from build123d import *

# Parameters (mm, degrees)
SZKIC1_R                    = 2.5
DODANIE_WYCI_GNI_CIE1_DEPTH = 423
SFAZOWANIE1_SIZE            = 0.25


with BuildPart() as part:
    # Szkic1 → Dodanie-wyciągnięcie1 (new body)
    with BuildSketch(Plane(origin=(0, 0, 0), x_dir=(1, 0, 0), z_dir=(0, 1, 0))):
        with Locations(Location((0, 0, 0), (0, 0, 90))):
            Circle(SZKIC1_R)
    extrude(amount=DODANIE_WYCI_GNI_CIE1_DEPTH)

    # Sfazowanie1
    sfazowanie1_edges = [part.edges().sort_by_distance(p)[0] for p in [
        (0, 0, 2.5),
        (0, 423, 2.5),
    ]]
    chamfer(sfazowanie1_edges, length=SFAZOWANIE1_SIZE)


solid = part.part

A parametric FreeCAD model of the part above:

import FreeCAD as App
import Part
import Sketcher

V = App.Vector


def edges_at(feature, points):
    """Names of the edges that pass closest to the given points."""
    edges = feature.Shape.Edges
    near = lambda p: min(range(len(edges)), key=lambda i: edges[i].distToShape(Part.Vertex(*p))[0])
    return sorted({f"Edge{near(p) + 1}" for p in points})

doc = App.newDocument("Part")
body = doc.addObject("PartDesign::Body", "Body")

sketch1 = doc.addObject("Sketcher::SketchObject", "Sketch")
body.addObject(sketch1)
sketch1.AttachmentSupport = (doc.XZ_Plane, [""])
sketch1.MapMode = "FlatFace"
sketch1.addGeometry(Part.Circle(V(0, 0, 0), V(0, 0, 1), 2.5), False)
sketch1.addConstraint(Sketcher.Constraint("Coincident", 0, 3, -1, 1))
sketch1.addConstraint(Sketcher.Constraint("Diameter", 0, 5.0))
pad1 = doc.addObject("PartDesign::Pad", "Pad")
body.addObject(pad1)
pad1.Profile = sketch1
pad1.Length = 423
pad1.Reversed = True
doc.recompute()

chamfer = doc.addObject("PartDesign::Chamfer", "Chamfer")
body.addObject(chamfer)
chamfer.Base = (pad1, edges_at(pad1, [(0, 0, 2.5), (0, 423, 2.5)]))
chamfer.Size = 0.25

doc.recompute()
